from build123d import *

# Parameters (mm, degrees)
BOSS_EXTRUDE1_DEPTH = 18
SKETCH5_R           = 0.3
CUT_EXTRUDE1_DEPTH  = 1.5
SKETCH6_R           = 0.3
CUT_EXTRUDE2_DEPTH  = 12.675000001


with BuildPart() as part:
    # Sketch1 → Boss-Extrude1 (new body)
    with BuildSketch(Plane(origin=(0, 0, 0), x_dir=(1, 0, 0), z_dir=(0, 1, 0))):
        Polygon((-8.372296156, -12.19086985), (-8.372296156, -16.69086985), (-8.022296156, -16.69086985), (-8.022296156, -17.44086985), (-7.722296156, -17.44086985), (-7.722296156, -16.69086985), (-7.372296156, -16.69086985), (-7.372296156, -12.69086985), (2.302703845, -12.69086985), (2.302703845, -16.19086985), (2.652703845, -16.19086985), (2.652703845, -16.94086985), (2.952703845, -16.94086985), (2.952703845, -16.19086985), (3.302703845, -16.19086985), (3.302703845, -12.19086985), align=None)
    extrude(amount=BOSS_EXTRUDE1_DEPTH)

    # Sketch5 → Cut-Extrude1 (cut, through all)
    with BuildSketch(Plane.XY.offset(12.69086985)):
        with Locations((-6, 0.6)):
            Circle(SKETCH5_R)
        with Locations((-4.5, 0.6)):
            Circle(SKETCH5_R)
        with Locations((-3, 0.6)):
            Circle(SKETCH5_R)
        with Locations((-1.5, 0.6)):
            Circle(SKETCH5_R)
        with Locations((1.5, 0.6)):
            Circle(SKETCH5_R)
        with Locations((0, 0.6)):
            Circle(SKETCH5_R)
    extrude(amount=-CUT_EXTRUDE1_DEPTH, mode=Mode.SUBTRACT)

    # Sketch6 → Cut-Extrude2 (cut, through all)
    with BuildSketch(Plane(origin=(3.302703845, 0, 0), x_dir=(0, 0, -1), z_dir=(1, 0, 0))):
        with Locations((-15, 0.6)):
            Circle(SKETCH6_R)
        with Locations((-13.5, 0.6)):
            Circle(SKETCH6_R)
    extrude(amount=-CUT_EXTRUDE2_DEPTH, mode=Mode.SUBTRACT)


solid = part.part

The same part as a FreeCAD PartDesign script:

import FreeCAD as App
import Part
import Sketcher
from FreeCAD import Vector
Q = App.Units.Quantity


def add_polygon(sketch, points):
    """Adds a closed chain of lines whose ends are joined by coincident constraints."""
    first, n = sketch.GeometryCount, len(points)
    for a, b in zip(points, points[1:] + points[:1]):
        sketch.addGeometry(Part.LineSegment(App.Vector(*a, 0), App.Vector(*b, 0)), False)
    for i in range(n):
        sketch.addConstraint(Sketcher.Constraint("Coincident", first + i, 2, first + (i + 1) % n, 1))

doc = App.newDocument("Part")
body = doc.addObject("PartDesign::Body", "Body")

sketch1 = body.newObject("Sketcher::SketchObject", "Sketch")
sketch1.AttachmentSupport = (doc.getObject("XZ_Plane"), [""])
sketch1.MapMode = "FlatFace"
add_polygon(sketch1, [(-8.37, 12.19), (-8.37, 16.69), (-8.02, 16.69), (-8.02, 17.44), (-7.72, 17.44), (-7.72, 16.69), (-7.37, 16.69), (-7.37, 12.69), (2.3, 12.69), (2.3, 16.19), (2.65, 16.19), (2.65, 16.94), (2.95, 16.94), (2.95, 16.19), (3.3, 16.19), (3.3, 12.19)])
sketch1.addConstraint([
    Sketcher.Constraint("Vertical", 0),
    Sketcher.Constraint("Horizontal", 1),
    Sketcher.Constraint("Vertical", 2),
    Sketcher.Constraint("Horizontal", 3),
    Sketcher.Constraint("Vertical", 4),
    Sketcher.Constraint("Horizontal", 5),
    Sketcher.Constraint("Vertical", 6),
    Sketcher.Constraint("Horizontal", 7),
    Sketcher.Constraint("Vertical", 8),
    Sketcher.Constraint("Horizontal", 9),
    Sketcher.Constraint("Vertical", 10),
    Sketcher.Constraint("Horizontal", 11),
    Sketcher.Constraint("Vertical", 12),
    Sketcher.Constraint("Horizontal", 13),
    Sketcher.Constraint("Vertical", 14),
    Sketcher.Constraint("Horizontal", 15),
    Sketcher.Constraint("Horizontal", 1, 2, 4, 2),
    Sketcher.Constraint("Horizontal", 9, 2, 12, 2),
    Sketcher.Constraint("Equal", 1, 5),
    Sketcher.Constraint("Equal", 5, 9),
    Sketcher.Constraint("Equal", 3, 11),
    Sketcher.Constraint("Equal", 9, 13),
    Sketcher.Constraint("Equal", 4, 10),
    Sketcher.Constraint("Equal", 6, 14),
    Sketcher.Constraint("DistanceY", 6, 2, 6, 1, Q("4 mm")),
    Sketcher.Constraint("DistanceX", 3, 1, 3, 2, Q("0.3 mm")),
    Sketcher.Constraint("DistanceY", 0, 1, 0, 2, Q("4.5 mm")),
    Sketcher.Constraint("DistanceX", 0, 2, 5, 2, Q("1 mm")),
    Sketcher.Constraint("DistanceY", 2, 1, 2, 2, Q("0.75 mm")),
    Sketcher.Constraint("DistanceX", 7, 1, 7, 2, Q("9.675 mm")),
    Sketcher.Constraint("DistanceY", -1, 1, 0, 2, Q("16.69087 mm")),
    Sketcher.Constraint("DistanceX", 0, 2, -1, 1, Q("8.372296 mm")),
])
pad1 = body.newObject("PartDesign::Pad", "Pad")
pad1.Profile = sketch1
pad1.Length = 18
pad1.Reversed = True

sketch2 = body.newObject("Sketcher::SketchObject", "Sketch001")
sketch2.AttachmentSupport = (doc.getObject("XY_Plane"), [""])
sketch2.MapMode = "FlatFace"
sketch2.AttachmentOffset = App.Placement(Vector(0, 0, 12.69087), App.Rotation())
sketch2.addGeometry([
    Part.Circle(Vector(-6, 0.6, 0), Vector(0, 0, 1), 0.3),
    Part.Circle(Vector(-4.5, 0.6, 0), Vector(0, 0, 1), 0.3),
    Part.Circle(Vector(-3, 0.6, 0), Vector(0, 0, 1), 0.3),
    Part.Circle(Vector(-1.5, 0.6, 0), Vector(0, 0, 1), 0.3),
    Part.Circle(Vector(1.5, 0.6, 0), Vector(0, 0, 1), 0.3),
    Part.Circle(Vector(0, 0.6, 0), Vector(0, 0, 1), 0.3),
], False)
sketch2.addConstraint([
    Sketcher.Constraint("Equal", 0, 1),
    Sketcher.Constraint("Equal", 1, 2),
    Sketcher.Constraint("Equal", 2, 3),
    Sketcher.Constraint("Equal", 3, 4),
    Sketcher.Constraint("Equal", 4, 5),
    Sketcher.Constraint("Symmetric", 3, 3, 4, 3, -2),
    Sketcher.Constraint("PointOnObject", 5, 3, -2),
    Sketcher.Constraint("Horizontal", 0, 3, 1, 3),
    Sketcher.Constraint("Horizontal", 1, 3, 2, 3),
    Sketcher.Constraint("Horizontal", 2, 3, 3, 3),
    Sketcher.Constraint("Horizontal", 4, 3, 5, 3),
    Sketcher.Constraint("Diameter", 0, Q("0.6 mm")),
    Sketcher.Constraint("DistanceX", 0, 3, -1, 1, Q("6 mm")),
    Sketcher.Constraint("DistanceX", 2, 3, -1, 1, Q("3 mm")),
    Sketcher.Constraint("DistanceX", 1, 3, 3, 3, Q("3 mm")),
    Sketcher.Constraint("DistanceX", 3, 3, 4, 3, Q("3 mm")),
    Sketcher.Constraint("DistanceY", -1, 1, 0, 3, Q("0.6 mm")),
])
pocket1 = body.newObject("PartDesign::Pocket", "Pocket")
pocket1.Profile = sketch2
pocket1.Type = "ThroughAll"

sketch3 = body.newObject("Sketcher::SketchObject", "Sketch002")
sketch3.AttachmentSupport = (doc.getObject("YZ_Plane"), [""])
sketch3.MapMode = "FlatFace"
sketch3.AttachmentOffset = App.Placement(Vector(0, 0, 3.302704), App.Rotation())
sketch3.addGeometry([
    Part.Circle(Vector(0.6, 15, 0), Vector(0, 0, 1), 0.3),
    Part.Circle(Vector(0.6, 13.5, 0), Vector(0, 0, 1), 0.3),
], False)
sketch3.addConstraint([
    Sketcher.Constraint("Equal", 0, 1),
    Sketcher.Constraint("Vertical", 0, 3, 1, 3),
    Sketcher.Constraint("Diameter", 0, Q("0.6 mm")),
    Sketcher.Constraint("DistanceY", -1, 1, 0, 3, Q("15 mm")),
    Sketcher.Constraint("DistanceX", -1, 1, 0, 3, Q("0.6 mm")),
    Sketcher.Constraint("DistanceY", -1, 1, 1, 3, Q("13.5 mm")),
])
pocket2 = body.newObject("PartDesign::Pocket", "Pocket001")
pocket2.Profile = sketch3
pocket2.Type = "ThroughAll"

doc.recompute()
